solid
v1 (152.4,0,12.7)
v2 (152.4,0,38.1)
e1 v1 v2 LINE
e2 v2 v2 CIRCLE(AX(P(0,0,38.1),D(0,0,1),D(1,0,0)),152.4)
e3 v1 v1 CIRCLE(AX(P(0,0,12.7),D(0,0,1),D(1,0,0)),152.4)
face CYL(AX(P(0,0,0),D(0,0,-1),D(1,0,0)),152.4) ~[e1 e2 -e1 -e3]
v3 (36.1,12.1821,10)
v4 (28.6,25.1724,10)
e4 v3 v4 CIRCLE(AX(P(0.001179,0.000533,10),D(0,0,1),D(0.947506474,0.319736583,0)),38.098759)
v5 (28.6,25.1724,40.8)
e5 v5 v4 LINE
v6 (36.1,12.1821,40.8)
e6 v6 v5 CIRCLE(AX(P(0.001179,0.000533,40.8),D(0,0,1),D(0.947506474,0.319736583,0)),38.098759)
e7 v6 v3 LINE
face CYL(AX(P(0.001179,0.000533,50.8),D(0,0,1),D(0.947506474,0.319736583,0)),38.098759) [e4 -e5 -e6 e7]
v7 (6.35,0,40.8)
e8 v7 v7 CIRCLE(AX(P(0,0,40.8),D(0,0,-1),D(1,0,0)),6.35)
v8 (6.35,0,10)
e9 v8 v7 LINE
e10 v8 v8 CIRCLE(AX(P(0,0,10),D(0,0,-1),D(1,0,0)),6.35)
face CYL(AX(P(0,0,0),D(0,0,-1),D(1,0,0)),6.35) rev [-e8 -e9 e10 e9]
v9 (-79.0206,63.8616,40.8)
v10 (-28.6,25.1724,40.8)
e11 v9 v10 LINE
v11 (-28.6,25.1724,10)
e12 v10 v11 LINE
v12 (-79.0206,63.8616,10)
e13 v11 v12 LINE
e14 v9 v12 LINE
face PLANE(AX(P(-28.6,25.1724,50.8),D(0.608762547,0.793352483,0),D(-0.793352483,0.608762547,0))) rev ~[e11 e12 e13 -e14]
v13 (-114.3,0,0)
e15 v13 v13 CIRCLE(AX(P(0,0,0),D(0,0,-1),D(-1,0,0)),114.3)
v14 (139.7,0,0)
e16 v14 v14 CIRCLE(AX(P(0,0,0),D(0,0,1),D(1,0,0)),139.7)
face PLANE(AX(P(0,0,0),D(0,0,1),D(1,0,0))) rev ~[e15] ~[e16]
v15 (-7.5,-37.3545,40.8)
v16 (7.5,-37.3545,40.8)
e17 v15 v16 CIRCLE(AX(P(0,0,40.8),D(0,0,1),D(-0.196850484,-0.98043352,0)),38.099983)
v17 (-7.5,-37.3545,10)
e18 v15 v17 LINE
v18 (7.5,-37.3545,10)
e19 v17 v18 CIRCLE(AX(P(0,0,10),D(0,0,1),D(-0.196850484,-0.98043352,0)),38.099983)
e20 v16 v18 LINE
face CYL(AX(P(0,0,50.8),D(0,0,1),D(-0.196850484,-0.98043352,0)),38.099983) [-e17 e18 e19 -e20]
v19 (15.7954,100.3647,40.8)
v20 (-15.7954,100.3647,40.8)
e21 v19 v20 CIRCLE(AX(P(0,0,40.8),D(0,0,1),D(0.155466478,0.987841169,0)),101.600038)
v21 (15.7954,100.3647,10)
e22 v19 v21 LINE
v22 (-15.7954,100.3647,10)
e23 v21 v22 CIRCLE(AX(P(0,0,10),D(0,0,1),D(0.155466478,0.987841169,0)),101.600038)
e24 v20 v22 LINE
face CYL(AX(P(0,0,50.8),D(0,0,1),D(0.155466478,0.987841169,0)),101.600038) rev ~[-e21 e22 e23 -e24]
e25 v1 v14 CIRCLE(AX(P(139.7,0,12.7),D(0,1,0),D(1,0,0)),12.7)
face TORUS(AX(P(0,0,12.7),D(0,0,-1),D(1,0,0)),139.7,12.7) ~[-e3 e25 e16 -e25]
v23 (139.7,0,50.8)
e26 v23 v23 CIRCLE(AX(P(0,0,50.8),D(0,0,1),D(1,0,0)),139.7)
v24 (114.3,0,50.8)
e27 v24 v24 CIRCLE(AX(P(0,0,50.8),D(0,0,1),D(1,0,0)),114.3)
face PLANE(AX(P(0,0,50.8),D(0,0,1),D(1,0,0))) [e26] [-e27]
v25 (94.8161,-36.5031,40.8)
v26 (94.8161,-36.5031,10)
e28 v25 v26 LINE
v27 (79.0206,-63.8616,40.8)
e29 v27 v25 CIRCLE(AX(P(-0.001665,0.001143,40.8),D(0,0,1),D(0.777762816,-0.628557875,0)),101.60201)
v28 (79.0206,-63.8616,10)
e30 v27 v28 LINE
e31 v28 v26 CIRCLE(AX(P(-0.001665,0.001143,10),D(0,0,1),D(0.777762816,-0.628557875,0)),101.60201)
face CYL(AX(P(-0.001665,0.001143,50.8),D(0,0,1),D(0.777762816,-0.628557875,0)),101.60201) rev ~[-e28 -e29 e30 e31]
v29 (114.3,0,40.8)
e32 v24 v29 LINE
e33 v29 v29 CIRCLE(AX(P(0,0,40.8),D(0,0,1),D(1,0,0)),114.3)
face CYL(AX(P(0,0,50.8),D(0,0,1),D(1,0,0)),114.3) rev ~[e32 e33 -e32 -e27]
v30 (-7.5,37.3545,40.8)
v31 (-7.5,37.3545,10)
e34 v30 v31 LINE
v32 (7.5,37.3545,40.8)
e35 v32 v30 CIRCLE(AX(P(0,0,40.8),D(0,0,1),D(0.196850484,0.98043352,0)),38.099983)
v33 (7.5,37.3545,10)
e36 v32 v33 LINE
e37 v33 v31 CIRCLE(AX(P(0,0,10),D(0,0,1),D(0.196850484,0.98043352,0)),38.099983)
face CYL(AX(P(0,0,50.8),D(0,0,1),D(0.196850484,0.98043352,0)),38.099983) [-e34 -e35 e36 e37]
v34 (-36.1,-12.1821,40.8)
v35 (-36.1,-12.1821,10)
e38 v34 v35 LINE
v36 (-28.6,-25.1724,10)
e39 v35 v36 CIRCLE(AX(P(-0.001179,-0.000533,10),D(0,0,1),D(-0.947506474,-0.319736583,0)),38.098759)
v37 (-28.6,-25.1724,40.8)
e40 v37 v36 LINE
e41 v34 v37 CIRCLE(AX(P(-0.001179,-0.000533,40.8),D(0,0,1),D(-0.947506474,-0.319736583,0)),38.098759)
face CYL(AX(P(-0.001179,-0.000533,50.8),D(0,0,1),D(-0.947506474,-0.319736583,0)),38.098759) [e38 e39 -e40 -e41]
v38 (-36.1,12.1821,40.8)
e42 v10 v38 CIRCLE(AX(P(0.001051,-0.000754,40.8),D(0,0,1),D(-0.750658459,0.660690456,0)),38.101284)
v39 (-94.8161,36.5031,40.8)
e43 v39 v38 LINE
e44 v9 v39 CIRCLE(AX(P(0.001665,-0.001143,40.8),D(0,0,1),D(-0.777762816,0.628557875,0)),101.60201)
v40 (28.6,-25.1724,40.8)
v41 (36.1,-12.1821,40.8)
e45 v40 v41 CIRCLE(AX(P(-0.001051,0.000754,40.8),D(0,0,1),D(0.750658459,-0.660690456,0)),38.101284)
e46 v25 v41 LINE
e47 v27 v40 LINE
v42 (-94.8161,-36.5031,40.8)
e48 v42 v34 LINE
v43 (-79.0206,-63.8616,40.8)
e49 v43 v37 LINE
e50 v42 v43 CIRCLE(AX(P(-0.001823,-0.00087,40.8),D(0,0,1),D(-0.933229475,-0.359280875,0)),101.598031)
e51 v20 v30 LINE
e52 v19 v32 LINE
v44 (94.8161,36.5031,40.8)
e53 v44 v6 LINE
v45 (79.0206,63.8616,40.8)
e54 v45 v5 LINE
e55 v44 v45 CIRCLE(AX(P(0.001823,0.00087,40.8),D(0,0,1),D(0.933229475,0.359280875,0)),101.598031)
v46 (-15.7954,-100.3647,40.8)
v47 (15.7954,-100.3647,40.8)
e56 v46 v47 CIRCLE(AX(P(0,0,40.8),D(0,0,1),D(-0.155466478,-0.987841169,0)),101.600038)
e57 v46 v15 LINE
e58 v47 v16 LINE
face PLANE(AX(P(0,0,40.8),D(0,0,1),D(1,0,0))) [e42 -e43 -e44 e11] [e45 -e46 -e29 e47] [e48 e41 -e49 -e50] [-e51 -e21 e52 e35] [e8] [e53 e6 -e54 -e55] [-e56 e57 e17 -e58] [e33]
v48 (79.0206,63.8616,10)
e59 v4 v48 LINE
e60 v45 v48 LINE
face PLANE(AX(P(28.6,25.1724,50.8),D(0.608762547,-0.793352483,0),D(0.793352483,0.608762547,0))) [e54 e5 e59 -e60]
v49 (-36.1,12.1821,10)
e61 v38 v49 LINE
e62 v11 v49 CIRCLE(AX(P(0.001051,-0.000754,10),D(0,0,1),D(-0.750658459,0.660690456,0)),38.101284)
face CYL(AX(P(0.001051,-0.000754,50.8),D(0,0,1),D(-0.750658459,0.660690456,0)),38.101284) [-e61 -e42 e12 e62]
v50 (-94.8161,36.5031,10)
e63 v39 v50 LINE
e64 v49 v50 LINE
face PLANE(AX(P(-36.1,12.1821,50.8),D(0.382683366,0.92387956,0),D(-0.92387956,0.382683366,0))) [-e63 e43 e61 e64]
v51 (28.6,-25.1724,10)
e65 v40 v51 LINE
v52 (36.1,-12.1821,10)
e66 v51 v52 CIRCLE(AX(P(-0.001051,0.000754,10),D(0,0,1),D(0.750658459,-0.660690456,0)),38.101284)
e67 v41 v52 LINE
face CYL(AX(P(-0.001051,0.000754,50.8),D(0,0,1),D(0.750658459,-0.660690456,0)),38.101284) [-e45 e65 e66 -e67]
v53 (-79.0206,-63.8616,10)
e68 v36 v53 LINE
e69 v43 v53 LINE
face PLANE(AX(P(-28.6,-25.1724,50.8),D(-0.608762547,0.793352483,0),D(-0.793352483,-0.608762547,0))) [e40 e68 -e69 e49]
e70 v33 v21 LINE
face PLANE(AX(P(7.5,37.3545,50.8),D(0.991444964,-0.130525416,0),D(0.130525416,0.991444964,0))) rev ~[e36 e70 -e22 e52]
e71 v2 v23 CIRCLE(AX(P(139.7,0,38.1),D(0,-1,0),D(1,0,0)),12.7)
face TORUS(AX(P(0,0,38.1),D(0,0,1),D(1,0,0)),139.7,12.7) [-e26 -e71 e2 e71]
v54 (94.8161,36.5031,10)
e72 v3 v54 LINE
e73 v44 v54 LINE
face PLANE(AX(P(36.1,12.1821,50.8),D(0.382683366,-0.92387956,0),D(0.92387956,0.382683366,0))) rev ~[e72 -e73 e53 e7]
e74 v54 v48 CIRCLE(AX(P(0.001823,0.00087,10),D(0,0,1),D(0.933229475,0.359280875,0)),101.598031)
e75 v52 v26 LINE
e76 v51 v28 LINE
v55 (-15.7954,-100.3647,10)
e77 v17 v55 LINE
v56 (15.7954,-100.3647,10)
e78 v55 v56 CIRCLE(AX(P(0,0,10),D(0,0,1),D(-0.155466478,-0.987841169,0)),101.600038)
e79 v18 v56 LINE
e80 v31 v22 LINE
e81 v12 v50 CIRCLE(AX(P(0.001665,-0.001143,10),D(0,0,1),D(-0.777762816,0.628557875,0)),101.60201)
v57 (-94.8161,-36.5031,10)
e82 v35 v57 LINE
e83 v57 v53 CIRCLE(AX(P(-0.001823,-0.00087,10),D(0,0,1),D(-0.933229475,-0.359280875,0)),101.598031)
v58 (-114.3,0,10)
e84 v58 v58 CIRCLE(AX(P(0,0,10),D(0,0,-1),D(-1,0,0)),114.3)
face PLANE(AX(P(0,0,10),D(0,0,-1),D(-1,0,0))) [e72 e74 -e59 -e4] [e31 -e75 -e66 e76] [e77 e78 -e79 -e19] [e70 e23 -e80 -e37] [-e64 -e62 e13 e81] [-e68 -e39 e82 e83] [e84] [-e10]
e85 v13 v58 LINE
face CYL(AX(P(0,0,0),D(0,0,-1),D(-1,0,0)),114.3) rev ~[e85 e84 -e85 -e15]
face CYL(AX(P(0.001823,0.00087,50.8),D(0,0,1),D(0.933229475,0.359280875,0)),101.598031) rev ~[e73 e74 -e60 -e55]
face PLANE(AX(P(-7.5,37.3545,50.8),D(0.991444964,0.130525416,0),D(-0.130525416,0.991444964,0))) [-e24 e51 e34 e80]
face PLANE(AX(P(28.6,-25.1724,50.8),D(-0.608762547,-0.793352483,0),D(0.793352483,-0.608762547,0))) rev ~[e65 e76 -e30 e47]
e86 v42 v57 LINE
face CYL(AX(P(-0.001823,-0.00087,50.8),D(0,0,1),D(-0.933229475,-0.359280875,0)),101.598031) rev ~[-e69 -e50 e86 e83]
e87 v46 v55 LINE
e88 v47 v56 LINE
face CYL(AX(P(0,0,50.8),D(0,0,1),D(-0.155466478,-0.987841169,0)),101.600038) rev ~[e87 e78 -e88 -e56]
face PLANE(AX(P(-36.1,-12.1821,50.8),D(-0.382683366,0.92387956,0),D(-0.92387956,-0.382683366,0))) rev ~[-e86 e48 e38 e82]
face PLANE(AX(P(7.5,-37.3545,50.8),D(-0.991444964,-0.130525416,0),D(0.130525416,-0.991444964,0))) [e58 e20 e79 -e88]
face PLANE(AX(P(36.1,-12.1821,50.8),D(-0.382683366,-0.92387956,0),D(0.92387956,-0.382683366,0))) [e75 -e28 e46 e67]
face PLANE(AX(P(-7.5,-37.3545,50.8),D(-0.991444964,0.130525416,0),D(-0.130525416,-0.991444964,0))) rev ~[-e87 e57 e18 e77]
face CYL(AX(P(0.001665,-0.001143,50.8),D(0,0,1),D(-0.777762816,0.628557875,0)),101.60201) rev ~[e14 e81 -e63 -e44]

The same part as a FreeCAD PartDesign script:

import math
import FreeCAD as App
import Part
import Sketcher
from FreeCAD import Vector
Q = App.Units.Quantity


def edges_at(feature, points):
    """Names of the edges that pass closest to the given points."""
    edges = feature.Shape.Edges
    near = lambda p: min(range(len(edges)), key=lambda i: edges[i].distToShape(Part.Vertex(*p))[0])
    return sorted({f"Edge{near(p) + 1}" for p in points})

doc = App.newDocument("Part")
body = doc.addObject("PartDesign::Body", "Body")

# Sketch on XY plane
sketch1 = doc.addObject("Sketcher::SketchObject", "Sketch")
body.addObject(sketch1)
sketch1.AttachmentSupport = (doc.XY_Plane, [""])
sketch1.MapMode = "FlatFace"
sketch1.addGeometry(Part.Circle(Vector(0, 0, 0), Vector(0, 0, 1), 152), False)
sketch1.addGeometry(Part.Circle(Vector(0, 0, 0), Vector(0, 0, 1), 6), False)
sketch1.addConstraint(Sketcher.Constraint("Coincident", 0, 3, -1, 1))
sketch1.addConstraint(Sketcher.Constraint("Coincident", 1, 3, -1, 1))
sketch1.addConstraint(Sketcher.Constraint("Diameter", 0, Q("12 in")))
sketch1.addConstraint(Sketcher.Constraint("Diameter", 1, Q("0.5 in")))
pad1 = doc.addObject("PartDesign::Pad", "Pad")
body.addObject(pad1)
pad1.Profile = sketch1
pad1.Length = Q("2 in")

# Sketch on XY plane
sketch2 = doc.addObject("Sketcher::SketchObject", "Sketch001")
body.addObject(sketch2)
sketch2.AttachmentSupport = (doc.XY_Plane, [""])
sketch2.MapMode = "FlatFace"
sketch2.AttachmentOffset = App.Placement(Vector(0, 0, 2 * 25.4), App.Rotation())
sketch2.addGeometry(Part.Circle(Vector(0, 0, 0), Vector(0, 0, 1), 6.35), False)
sketch2.addGeometry(Part.LineSegment(Vector(15.7954, -100.3647, 0), Vector(7.5, -37.3545, 0)), False)
sketch2.addGeometry(Part.ArcOfCircle(Part.Circle(Vector(0, 0, 0), Vector(0, 0, 1), 38.099983), math.radians(-101.352844), math.radians(-78.647156)), False)
sketch2.addGeometry(Part.LineSegment(Vector(-7.5, -37.3545, 0), Vector(-15.7954, -100.3647, 0)), False)
sketch2.addGeometry(Part.ArcOfCircle(Part.Circle(Vector(0, 0, 0), Vector(0, 0, 1), 101.600038), math.radians(-98.943851), math.radians(-81.056149)), False)
sketch2.addGeometry(Part.LineSegment(Vector(94.8161, -36.5031, 0), Vector(36.1, -12.1821, 0)), False)
sketch2.addGeometry(Part.ArcOfCircle(Part.Circle(Vector(-0.001051, 0.000754, 0), Vector(0, 0, 1), 38.101284), math.radians(-41.352552), math.radians(-18.647757)), False)
sketch2.addGeometry(Part.LineSegment(Vector(28.6, -25.1724, 0), Vector(79.0206, -63.8616, 0)), False)
sketch2.addGeometry(Part.ArcOfCircle(Part.Circle(Vector(-0.001665, 0.001143, 0), Vector(0, 0, 1), 101.60201), math.radians(-38.943805), math.radians(-21.056392)), False)
sketch2.addGeometry(Part.LineSegment(Vector(79.0206, 63.8616, 0), Vector(28.6, 25.1724, 0)), False)
sketch2.addGeometry(Part.ArcOfCircle(Part.Circle(Vector(0.001179, 0.000533, 0), Vector(0, 0, 1), 38.098759), math.radians(18.646995), math.radians(41.353314)), False)
sketch2.addGeometry(Part.LineSegment(Vector(36.1, 12.1821, 0), Vector(94.8161, 36.5031, 0)), False)
sketch2.addGeometry(Part.ArcOfCircle(Part.Circle(Vector(0.001823, 0.00087, 0), Vector(0, 0, 1), 101.598031), math.radians(21.056039), math.radians(38.944158)), False)
sketch2.addGeometry(Part.LineSegment(Vector(-15.7954, 100.3647, 0), Vector(-7.5, 37.3545, 0)), False)
sketch2.addGeometry(Part.ArcOfCircle(Part.Circle(Vector(0, 0, 0), Vector(0, 0, 1), 38.099983), math.radians(78.647156), math.radians(101.352844)), False)
sketch2.addGeometry(Part.LineSegment(Vector(7.5, 37.3545, 0), Vector(15.7954, 100.3647, 0)), False)
sketch2.addGeometry(Part.ArcOfCircle(Part.Circle(Vector(0, 0, 0), Vector(0, 0, 1), 101.600038), math.radians(81.056149), math.radians(98.943851)), False)
sketch2.addGeometry(Part.LineSegment(Vector(-94.8161, 36.5031, 0), Vector(-36.1, 12.1821, 0)), False)
sketch2.addGeometry(Part.ArcOfCircle(Part.Circle(Vector(0.001051, -0.000754, 0), Vector(0, 0, 1), 38.101284), math.radians(138.647448), math.radians(161.352243)), False)
sketch2.addGeometry(Part.LineSegment(Vector(-28.6, 25.1724, 0), Vector(-79.0206, 63.8616, 0)), False)
sketch2.addGeometry(Part.ArcOfCircle(Part.Circle(Vector(0.001665, -0.001143, 0), Vector(0, 0, 1), 101.60201), math.radians(141.056195), math.radians(158.943608)), False)
sketch2.addGeometry(Part.LineSegment(Vector(-79.0206, -63.8616, 0), Vector(-28.6, -25.1724, 0)), False)
sketch2.addGeometry(Part.ArcOfCircle(Part.Circle(Vector(-0.001179, -0.000533, 0), Vector(0, 0, 1), 38.098759), math.radians(-161.353005), math.radians(-138.646686)), False)
sketch2.addGeometry(Part.LineSegment(Vector(-36.1, -12.1821, 0), Vector(-94.8161, -36.5031, 0)), False)
sketch2.addGeometry(Part.ArcOfCircle(Part.Circle(Vector(-0.001823, -0.00087, 0), Vector(0, 0, 1), 101.598031), math.radians(-158.943961), math.radians(-141.055842)), False)
sketch2.addConstraint(Sketcher.Constraint("Coincident", 1, 2, 2, 2))
sketch2.addConstraint(Sketcher.Constraint("Coincident", 2, 1, 3, 1))
sketch2.addConstraint(Sketcher.Constraint("Coincident", 3, 2, 4, 1))
sketch2.addConstraint(Sketcher.Constraint("Coincident", 4, 2, 1, 1))
sketch2.addConstraint(Sketcher.Constraint("Coincident", 5, 2, 6, 2))
sketch2.addConstraint(Sketcher.Constraint("Coincident", 6, 1, 7, 1))
sketch2.addConstraint(Sketcher.Constraint("Coincident", 7, 2, 8, 1))
sketch2.addConstraint(Sketcher.Constraint("Coincident", 8, 2, 5, 1))
sketch2.addConstraint(Sketcher.Constraint("Coincident", 9, 2, 10, 2))
sketch2.addConstraint(Sketcher.Constraint("Coincident", 10, 1, 11, 1))
sketch2.addConstraint(Sketcher.Constraint("Coincident", 11, 2, 12, 1))
sketch2.addConstraint(Sketcher.Constraint("Coincident", 12, 2, 9, 1))
sketch2.addConstraint(Sketcher.Constraint("Coincident", 13, 2, 14, 2))
sketch2.addConstraint(Sketcher.Constraint("Coincident", 14, 1, 15, 1))
sketch2.addConstraint(Sketcher.Constraint("Coincident", 15, 2, 16, 1))
sketch2.addConstraint(Sketcher.Constraint("Coincident", 16, 2, 13, 1))
sketch2.addConstraint(Sketcher.Constraint("Coincident", 17, 2, 18, 2))
sketch2.addConstraint(Sketcher.Constraint("Coincident", 18, 1, 19, 1))
sketch2.addConstraint(Sketcher.Constraint("Coincident", 19, 2, 20, 1))
sketch2.addConstraint(Sketcher.Constraint("Coincident", 20, 2, 17, 1))
sketch2.addConstraint(Sketcher.Constraint("Coincident", 21, 2, 22, 2))
sketch2.addConstraint(Sketcher.Constraint("Coincident", 22, 1, 23, 1))
sketch2.addConstraint(Sketcher.Constraint("Coincident", 23, 2, 24, 1))
sketch2.addConstraint(Sketcher.Constraint("Coincident", 24, 2, 21, 1))
sketch2.addConstraint(Sketcher.Constraint("Coincident", 0, 3, -1, 1))
sketch2.addConstraint(Sketcher.Constraint("Coincident", 2, 3, -1, 1))
sketch2.addConstraint(Sketcher.Constraint("Coincident", 4, 3, -1, 1))
sketch2.addConstraint(Sketcher.Constraint("Coincident", 14, 3, -1, 1))
sketch2.addConstraint(Sketcher.Constraint("Coincident", 16, 3, -1, 1))
sketch2.addConstraint(Sketcher.Constraint("Radius", 4, Q("4 in")))
sketch2.addConstraint(Sketcher.Constraint("Radius", 16, Q("4 in")))
sketch2.addConstraint(Sketcher.Constraint("Radius", 2, Q("1.5 in")))
sketch2.addConstraint(Sketcher.Constraint("Radius", 14, Q("1.5 in")))
sketch2.addConstraint(Sketcher.Constraint("Diameter", 0, Q("0.5 in")))
sketch2.addConstraint(Sketcher.Constraint("DistanceY", 10, 3, 6, 3, Q("0 in")))
sketch2.addConstraint(Sketcher.Constraint("DistanceY", 6, 3, 12, 3, Q("0 in")))
sketch2.addConstraint(Sketcher.Constraint("DistanceX", 18, 3, 10, 3, Q("0 in")))
sketch2.addConstraint(Sketcher.Constraint("DistanceX", 20, 3, 12, 3, Q("0 in")))
sketch2.addConstraint(Sketcher.Constraint("Radius", 6, 38.1013))
sketch2.addConstraint(Sketcher.Constraint("Radius", 8, 101.602))
sketch2.addConstraint(Sketcher.Constraint("Radius", 10, 38.0988))
sketch2.addConstraint(Sketcher.Constraint("Radius", 12, 101.598))
sketch2.addConstraint(Sketcher.Constraint("Radius", 18, 38.1013))
sketch2.addConstraint(Sketcher.Constraint("Radius", 20, 101.602))
sketch2.addConstraint(Sketcher.Constraint("Radius", 22, 38.0988))
sketch2.addConstraint(Sketcher.Constraint("Radius", 24, 101.598))
sketch2.addConstraint(Sketcher.Constraint("DistanceX", 2, 1, 1, 2, 15.0))
sketch2.addConstraint(Sketcher.Constraint("DistanceX", 13, 2, 14, 1, 15.0))
sketch2.addConstraint(Sketcher.Constraint("DistanceY", 6, 1, 20, 3, Q("0.991 in")))
sketch2.addConstraint(Sketcher.Constraint("DistanceY", 6, 1, 18, 3, Q("0.991 in")))
sketch2.addConstraint(Sketcher.Constraint("DistanceY", 12, 3, 9, 2, Q("0.991 in")))
sketch2.addConstraint(Sketcher.Constraint("DistanceY", 8, 3, 18, 1, Q("0.991 in")))
sketch2.addConstraint(Sketcher.Constraint("DistanceY", 6, 3, 18, 1, Q("0.991 in")))
sketch2.addConstraint(Sketcher.Constraint("DistanceY", 21, 2, 24, 3, Q("0.991 in")))
sketch2.addConstraint(Sketcher.Constraint("DistanceY", 5, 2, -1, 1, Q("0.4796 in")))
sketch2.addConstraint(Sketcher.Constraint("DistanceY", -1, 1, 10, 1, Q("0.4796 in")))
sketch2.addConstraint(Sketcher.Constraint("DistanceY", -1, 1, 17, 2, Q("0.4796 in")))
sketch2.addConstraint(Sketcher.Constraint("DistanceY", 22, 1, -1, 1, Q("0.4796 in")))
sketch2.addConstraint(Sketcher.Constraint("DistanceX", 8, 3, 10, 3, Q("0.0001 in")))
sketch2.addConstraint(Sketcher.Constraint("DistanceX", 20, 3, 1, 2, Q("0.2952 in")))
sketch2.addConstraint(Sketcher.Constraint("DistanceY", 1, 2, 20, 3, Q("1.4706 in")))
sketch2.addConstraint(Sketcher.Constraint("DistanceX", 2, 1, 24, 3, Q("0.2952 in")))
sketch2.addConstraint(Sketcher.Constraint("DistanceY", 2, 1, 20, 3, Q("1.4706 in")))
sketch2.addConstraint(Sketcher.Constraint("DistanceX", 3, 2, 2, 1, Q("0.3266 in")))
sketch2.addConstraint(Sketcher.Constraint("DistanceX", 1, 2, 4, 2, Q("0.3266 in")))
sketch2.addConstraint(Sketcher.Constraint("DistanceX", 20, 3, 5, 2, Q("1.4212 in")))
sketch2.addConstraint(Sketcher.Constraint("DistanceX", 1, 2, 6, 1, Q("0.8307 in")))
sketch2.addConstraint(Sketcher.Constraint("DistanceY", 7, 2, 6, 1, Q("1.5232 in")))
sketch2.addConstraint(Sketcher.Constraint("DistanceY", 7, 2, 8, 2, Q("1.0771 in")))
sketch2.addConstraint(Sketcher.Constraint("DistanceX", 12, 3, 10, 1, Q("1.4212 in")))
sketch2.addConstraint(Sketcher.Constraint("DistanceY", 9, 2, 11, 2, Q("0.4461 in")))
sketch2.addConstraint(Sketcher.Constraint("DistanceY", 11, 2, 12, 2, Q("1.0771 in")))
sketch2.addConstraint(Sketcher.Constraint("DistanceX", 13, 2, 8, 3, Q("0.2952 in")))
sketch2.addConstraint(Sketcher.Constraint("DistanceX", 14, 1, 15, 2, Q("0.3266 in")))
sketch2.addConstraint(Sketcher.Constraint("DistanceX", 16, 2, 13, 2, Q("0.3266 in")))
sketch2.addConstraint(Sketcher.Constraint("DistanceY", 18, 1, 19, 2, Q("1.5232 in")))
sketch2.addConstraint(Sketcher.Constraint("DistanceY", 20, 2, 19, 2, Q("1.0771 in")))
sketch2.addConstraint(Sketcher.Constraint("DistanceX", 21, 2, 2, 1, Q("0.8307 in")))
sketch2.addConstraint(Sketcher.Constraint("DistanceY", 2, 1, 21, 2, Q("0.4796 in")))
sketch2.addConstraint(Sketcher.Constraint("DistanceX", 22, 1, 24, 3, Q("1.4212 in")))
sketch2.addConstraint(Sketcher.Constraint("DistanceY", 23, 2, 21, 2, Q("0.4461 in")))
sketch2.addConstraint(Sketcher.Constraint("DistanceY", 24, 2, 23, 2, Q("1.0771 in")))
pocket1 = doc.addObject("PartDesign::Pocket", "Pocket")
body.addObject(pocket1)
pocket1.Profile = sketch2
pocket1.Type = "ThroughAll"

# Sketch on XY plane
sketch3 = doc.addObject("Sketcher::SketchObject", "Sketch002")
body.addObject(sketch3)
sketch3.AttachmentSupport = (doc.XY_Plane, [""])
sketch3.MapMode = "FlatFace"
sketch3.AttachmentOffset = App.Placement(Vector(0, 0, 2 * 25.4), App.Rotation())
sketch3.addGeometry(Part.Circle(Vector(0, 0, 0), Vector(0, 0, 1), 114), False)
sketch3.addConstraint(Sketcher.Constraint("Coincident", 0, 3, -1, 1))
sketch3.addConstraint(Sketcher.Constraint("Diameter", 0, Q("9 in")))
pocket2 = doc.addObject("PartDesign::Pocket", "Pocket001")
body.addObject(pocket2)
pocket2.Profile = sketch3
pocket2.Length = Q("0.3937008 in")

# Sketch on XY plane
sketch4 = doc.addObject("Sketcher::SketchObject", "Sketch003")
body.addObject(sketch4)
sketch4.AttachmentSupport = (doc.XY_Plane, [""])
sketch4.MapMode = "FlatFace"
sketch4.addGeometry(Part.Circle(Vector(0, 0, 0), Vector(0, 0, 1), 114), False)
sketch4.addConstraint(Sketcher.Constraint("Coincident", 0, 3, -1, 1))
sketch4.addConstraint(Sketcher.Constraint("Diameter", 0, Q("9 in")))
pocket3 = doc.addObject("PartDesign::Pocket", "Pocket002")
body.addObject(pocket3)
pocket3.Profile = sketch4
pocket3.Length = Q("0.3937008 in")
pocket3.Reversed = True
doc.recompute()

fillet = doc.addObject("PartDesign::Fillet", "Fillet")
body.addObject(fillet)
fillet.Base = (pocket3, edges_at(pocket3, [(-152.4, 0, 0), (-152.4, 0, 50.8)]))
fillet.Radius = Q("0.5 in")

doc.recompute()
